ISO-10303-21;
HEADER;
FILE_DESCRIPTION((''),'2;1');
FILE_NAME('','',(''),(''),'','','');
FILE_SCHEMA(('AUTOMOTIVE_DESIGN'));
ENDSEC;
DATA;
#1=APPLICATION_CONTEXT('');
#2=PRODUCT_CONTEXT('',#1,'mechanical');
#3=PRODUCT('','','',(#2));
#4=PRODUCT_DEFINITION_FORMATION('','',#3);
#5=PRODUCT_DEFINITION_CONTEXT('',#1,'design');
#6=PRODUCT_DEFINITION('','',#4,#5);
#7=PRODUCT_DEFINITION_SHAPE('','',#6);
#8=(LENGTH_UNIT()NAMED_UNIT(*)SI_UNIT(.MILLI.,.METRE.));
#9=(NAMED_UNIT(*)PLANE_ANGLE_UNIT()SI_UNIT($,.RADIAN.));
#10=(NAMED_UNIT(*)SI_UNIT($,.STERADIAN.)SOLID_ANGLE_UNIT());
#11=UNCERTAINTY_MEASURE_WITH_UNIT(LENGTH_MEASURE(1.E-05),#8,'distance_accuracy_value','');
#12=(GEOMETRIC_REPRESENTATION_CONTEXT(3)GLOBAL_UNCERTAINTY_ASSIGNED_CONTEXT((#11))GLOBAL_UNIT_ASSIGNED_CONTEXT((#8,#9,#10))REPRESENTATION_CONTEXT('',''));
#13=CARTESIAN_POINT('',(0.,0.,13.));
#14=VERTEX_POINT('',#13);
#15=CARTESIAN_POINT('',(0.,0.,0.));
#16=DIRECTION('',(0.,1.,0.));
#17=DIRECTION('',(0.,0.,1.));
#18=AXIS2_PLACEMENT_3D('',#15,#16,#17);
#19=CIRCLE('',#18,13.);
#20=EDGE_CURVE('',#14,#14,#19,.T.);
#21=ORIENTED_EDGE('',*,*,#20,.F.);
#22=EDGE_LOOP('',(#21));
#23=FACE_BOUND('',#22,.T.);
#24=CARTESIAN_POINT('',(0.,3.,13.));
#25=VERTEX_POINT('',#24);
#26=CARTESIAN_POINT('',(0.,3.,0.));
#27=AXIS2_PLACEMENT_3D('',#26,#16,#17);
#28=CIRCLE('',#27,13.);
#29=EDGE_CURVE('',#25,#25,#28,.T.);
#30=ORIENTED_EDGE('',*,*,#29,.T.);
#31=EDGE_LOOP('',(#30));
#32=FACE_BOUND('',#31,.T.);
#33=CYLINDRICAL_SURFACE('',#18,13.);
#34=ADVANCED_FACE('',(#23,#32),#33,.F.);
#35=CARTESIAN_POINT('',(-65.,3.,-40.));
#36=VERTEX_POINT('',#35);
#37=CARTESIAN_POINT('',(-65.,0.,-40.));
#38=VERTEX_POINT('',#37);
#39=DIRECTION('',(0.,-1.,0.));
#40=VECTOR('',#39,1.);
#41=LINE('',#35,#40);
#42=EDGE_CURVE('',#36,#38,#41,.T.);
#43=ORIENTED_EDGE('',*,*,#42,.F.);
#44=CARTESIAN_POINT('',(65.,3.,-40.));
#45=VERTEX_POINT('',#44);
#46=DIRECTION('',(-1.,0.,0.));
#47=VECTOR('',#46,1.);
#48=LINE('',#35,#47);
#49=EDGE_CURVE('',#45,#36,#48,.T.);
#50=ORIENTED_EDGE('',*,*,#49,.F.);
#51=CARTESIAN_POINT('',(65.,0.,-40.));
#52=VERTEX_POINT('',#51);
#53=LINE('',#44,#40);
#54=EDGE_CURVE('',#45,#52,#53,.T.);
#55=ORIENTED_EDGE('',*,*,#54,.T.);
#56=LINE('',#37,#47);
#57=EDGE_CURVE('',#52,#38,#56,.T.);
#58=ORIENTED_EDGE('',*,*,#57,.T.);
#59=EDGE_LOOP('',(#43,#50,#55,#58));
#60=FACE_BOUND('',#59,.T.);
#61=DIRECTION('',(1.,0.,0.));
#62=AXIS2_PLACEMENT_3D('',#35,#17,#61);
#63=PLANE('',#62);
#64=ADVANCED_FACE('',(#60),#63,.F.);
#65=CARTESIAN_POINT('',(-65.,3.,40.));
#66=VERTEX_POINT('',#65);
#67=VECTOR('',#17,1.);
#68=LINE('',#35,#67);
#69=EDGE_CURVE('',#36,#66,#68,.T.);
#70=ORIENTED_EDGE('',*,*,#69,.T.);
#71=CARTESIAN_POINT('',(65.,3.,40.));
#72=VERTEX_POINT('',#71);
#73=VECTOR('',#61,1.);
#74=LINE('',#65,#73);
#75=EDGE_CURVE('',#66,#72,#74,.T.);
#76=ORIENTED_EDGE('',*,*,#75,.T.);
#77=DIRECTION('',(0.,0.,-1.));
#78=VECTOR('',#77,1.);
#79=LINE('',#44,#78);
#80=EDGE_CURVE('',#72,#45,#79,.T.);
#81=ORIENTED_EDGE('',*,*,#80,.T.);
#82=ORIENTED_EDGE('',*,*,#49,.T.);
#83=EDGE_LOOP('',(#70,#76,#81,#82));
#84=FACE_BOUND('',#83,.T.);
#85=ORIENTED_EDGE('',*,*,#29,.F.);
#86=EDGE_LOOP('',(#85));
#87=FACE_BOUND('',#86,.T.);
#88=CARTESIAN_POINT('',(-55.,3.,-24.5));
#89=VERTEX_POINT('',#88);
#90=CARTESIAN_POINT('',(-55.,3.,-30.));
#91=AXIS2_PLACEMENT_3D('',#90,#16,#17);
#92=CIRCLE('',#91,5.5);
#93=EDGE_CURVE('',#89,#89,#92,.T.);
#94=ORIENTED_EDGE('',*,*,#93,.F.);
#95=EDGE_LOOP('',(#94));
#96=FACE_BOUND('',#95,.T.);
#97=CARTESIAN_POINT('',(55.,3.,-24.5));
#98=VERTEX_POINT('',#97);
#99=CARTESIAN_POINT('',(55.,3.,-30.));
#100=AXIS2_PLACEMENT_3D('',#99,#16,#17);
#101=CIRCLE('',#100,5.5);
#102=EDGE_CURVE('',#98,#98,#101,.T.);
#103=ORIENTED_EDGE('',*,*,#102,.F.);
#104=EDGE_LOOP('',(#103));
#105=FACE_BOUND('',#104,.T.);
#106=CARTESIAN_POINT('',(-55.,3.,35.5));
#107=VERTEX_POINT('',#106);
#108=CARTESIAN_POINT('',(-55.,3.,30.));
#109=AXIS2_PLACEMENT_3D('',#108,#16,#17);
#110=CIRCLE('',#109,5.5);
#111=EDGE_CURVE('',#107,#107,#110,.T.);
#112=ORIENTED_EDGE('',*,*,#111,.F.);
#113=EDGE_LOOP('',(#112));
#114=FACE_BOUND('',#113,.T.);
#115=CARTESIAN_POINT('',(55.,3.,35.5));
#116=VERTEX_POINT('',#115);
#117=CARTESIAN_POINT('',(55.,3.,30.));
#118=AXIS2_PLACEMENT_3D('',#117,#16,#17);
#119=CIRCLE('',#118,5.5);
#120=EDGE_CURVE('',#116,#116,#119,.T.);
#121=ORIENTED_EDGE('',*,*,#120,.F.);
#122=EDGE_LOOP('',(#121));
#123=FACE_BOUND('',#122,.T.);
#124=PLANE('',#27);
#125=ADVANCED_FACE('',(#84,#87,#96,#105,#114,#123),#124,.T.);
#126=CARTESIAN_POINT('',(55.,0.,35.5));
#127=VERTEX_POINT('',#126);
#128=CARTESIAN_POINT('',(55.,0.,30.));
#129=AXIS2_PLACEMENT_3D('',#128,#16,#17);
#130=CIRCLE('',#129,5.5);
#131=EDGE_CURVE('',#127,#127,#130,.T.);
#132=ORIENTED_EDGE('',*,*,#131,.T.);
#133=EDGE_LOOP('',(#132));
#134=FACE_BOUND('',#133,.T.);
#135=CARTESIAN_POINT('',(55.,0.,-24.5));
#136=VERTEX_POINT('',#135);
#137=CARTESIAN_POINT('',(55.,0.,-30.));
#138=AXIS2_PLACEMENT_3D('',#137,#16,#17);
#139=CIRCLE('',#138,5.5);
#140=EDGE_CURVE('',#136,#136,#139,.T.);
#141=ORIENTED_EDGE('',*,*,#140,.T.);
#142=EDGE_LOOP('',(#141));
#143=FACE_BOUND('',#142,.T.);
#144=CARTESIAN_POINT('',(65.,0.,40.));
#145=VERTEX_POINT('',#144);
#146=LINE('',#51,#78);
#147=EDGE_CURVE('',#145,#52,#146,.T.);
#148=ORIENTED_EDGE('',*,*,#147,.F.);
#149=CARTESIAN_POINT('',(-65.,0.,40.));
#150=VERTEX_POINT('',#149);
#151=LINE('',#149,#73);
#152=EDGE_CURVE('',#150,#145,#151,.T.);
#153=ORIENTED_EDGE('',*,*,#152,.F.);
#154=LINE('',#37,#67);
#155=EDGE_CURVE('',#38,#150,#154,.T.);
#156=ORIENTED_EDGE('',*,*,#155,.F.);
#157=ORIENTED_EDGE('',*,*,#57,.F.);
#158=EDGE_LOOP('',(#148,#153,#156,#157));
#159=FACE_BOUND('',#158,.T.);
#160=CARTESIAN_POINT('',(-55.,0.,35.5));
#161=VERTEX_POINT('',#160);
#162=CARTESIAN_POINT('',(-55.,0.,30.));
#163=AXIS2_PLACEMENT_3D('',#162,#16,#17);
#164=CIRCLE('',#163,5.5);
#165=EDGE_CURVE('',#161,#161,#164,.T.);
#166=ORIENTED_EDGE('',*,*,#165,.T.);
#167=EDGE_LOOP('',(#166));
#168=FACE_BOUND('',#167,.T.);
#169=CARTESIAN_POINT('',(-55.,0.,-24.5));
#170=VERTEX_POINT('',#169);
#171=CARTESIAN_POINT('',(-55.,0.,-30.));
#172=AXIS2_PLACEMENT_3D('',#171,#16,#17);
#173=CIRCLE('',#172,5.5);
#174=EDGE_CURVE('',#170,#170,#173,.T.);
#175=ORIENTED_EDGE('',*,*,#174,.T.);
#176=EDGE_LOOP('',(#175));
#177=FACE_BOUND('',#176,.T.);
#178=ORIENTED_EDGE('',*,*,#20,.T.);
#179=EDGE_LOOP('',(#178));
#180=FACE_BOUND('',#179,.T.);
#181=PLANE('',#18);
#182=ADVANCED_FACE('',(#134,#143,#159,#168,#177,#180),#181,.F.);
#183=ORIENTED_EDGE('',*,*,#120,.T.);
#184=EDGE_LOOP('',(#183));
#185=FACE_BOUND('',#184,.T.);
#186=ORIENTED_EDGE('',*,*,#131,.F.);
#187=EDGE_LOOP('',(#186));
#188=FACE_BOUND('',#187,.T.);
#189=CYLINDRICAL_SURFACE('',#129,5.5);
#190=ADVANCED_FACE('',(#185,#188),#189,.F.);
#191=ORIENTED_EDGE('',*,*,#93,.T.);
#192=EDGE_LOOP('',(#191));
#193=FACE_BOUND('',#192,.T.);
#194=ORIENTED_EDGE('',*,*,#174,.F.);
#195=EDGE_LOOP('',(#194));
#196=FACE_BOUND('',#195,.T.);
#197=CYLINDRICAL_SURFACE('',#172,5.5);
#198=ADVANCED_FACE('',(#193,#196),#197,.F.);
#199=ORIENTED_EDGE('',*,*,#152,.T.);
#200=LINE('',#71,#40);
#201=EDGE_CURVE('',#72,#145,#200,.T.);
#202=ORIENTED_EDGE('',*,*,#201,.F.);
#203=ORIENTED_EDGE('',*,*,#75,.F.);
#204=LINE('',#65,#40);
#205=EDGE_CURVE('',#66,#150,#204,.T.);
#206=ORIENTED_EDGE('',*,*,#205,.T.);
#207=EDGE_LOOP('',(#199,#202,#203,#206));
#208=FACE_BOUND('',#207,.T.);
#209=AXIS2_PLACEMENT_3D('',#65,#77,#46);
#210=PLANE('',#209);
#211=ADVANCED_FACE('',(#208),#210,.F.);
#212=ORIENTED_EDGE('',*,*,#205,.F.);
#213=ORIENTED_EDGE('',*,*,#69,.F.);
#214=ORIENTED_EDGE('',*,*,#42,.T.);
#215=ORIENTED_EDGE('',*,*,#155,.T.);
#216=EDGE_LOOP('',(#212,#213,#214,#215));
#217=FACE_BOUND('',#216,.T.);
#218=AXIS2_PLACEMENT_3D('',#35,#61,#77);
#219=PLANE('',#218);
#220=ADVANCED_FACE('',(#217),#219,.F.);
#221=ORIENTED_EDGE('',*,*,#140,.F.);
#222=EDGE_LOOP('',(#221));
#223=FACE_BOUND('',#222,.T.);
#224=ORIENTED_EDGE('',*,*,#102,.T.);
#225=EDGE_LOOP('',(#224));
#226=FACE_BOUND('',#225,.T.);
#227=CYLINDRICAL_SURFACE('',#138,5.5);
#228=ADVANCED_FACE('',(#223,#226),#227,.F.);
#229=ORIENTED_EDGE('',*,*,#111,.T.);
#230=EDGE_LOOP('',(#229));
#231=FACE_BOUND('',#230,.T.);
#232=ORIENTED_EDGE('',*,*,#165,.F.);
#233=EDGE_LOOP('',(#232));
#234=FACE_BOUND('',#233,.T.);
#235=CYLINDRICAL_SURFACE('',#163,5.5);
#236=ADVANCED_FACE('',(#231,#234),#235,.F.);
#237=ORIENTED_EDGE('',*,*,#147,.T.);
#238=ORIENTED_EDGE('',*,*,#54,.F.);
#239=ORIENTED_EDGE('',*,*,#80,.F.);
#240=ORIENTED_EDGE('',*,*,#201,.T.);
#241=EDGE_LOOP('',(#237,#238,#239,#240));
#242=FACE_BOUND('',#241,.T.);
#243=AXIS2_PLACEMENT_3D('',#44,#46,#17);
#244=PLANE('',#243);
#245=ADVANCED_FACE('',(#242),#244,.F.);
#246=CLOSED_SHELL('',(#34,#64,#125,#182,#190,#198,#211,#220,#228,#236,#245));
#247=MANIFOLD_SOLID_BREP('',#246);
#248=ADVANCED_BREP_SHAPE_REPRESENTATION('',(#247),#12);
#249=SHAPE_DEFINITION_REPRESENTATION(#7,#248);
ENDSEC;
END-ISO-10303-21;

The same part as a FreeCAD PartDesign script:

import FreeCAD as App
import Part
import Sketcher
from FreeCAD import Vector

doc = App.newDocument("Part")
body = doc.addObject("PartDesign::Body", "Body")

# Sketch on XZ plane
sketch1 = body.newObject("Sketcher::SketchObject", "Sketch")
sketch1.AttachmentSupport = (doc.getObject("XZ_Plane"), [""])
sketch1.MapMode = "FlatFace"
sketch1.addGeometry([
    Part.LineSegment(Vector(-65, -40, 0), Vector(-65, 40, 0)),
    Part.LineSegment(Vector(-65, 40, 0), Vector(65, 40, 0)),
    Part.LineSegment(Vector(65, 40, 0), Vector(65, -40, 0)),
    Part.LineSegment(Vector(65, -40, 0), Vector(-65, -40, 0)),
], False)
sketch1.addConstraint([
    Sketcher.Constraint("Coincident", 0, 2, 1, 1),
    Sketcher.Constraint("Coincident", 1, 2, 2, 1),
    Sketcher.Constraint("Coincident", 2, 2, 3, 1),
    Sketcher.Constraint("Coincident", 3, 2, 0, 1),
    Sketcher.Constraint("Vertical", 0),
    Sketcher.Constraint("Horizontal", 1),
    Sketcher.Constraint("Vertical", 2),
    Sketcher.Constraint("Horizontal", 3),
    Sketcher.Constraint("Symmetric", 0, 2, 2, 2, -1, 1),
    Sketcher.Constraint("DistanceX", 1, 1, 1, 2, 130.0),
    Sketcher.Constraint("DistanceY", 0, 1, 0, 2, 80.0),
])
pad1 = body.newObject("PartDesign::Pad", "Pad")
pad1.Profile = sketch1
pad1.Length = 3
pad1.Reversed = True

# Sketch on XZ plane
sketch2 = body.newObject("Sketcher::SketchObject", "Sketch001")
sketch2.AttachmentSupport = (doc.getObject("XZ_Plane"), [""])
sketch2.MapMode = "FlatFace"
sketch2.AttachmentOffset = App.Placement(Vector(0, 0, -3), App.Rotation())
sketch2.addGeometry(Part.Circle(Vector(0, 0, 0), Vector(0, 0, 1), 13), False)
sketch2.addConstraint([
    Sketcher.Constraint("Coincident", 0, 3, -1, 1),
    Sketcher.Constraint("Diameter", 0, 26.0),
])
pocket1 = body.newObject("PartDesign::Pocket", "Pocket")
pocket1.Profile = sketch2
pocket1.Length = 3
pocket1.Reversed = True

# Sketch on XZ plane
sketch3 = body.newObject("Sketcher::SketchObject", "Sketch002")
sketch3.AttachmentSupport = (doc.getObject("XZ_Plane"), [""])
sketch3.MapMode = "FlatFace"
sketch3.AttachmentOffset = App.Placement(Vector(0, 0, -3), App.Rotation())
sketch3.addGeometry([
    Part.Circle(Vector(-55, -30, 0), Vector(0, 0, 1), 6),
    Part.Circle(Vector(-55, 30, 0), Vector(0, 0, 1), 6),
    Part.Circle(Vector(55, -30, 0), Vector(0, 0, 1), 6),
    Part.Circle(Vector(55, 30, 0), Vector(0, 0, 1), 6),
], False)
sketch3.addConstraint([
    Sketcher.Constraint("Equal", 0, 1),
    Sketcher.Constraint("Equal", 1, 2),
    Sketcher.Constraint("Equal", 2, 3),
    Sketcher.Constraint("Symmetric", 1, 3, 2, 3, -1, 1),
    Sketcher.Constraint("Symmetric", 0, 3, 3, 3, -1, 1),
    Sketcher.Constraint("Symmetric", 0, 3, 2, 3, -2),
    Sketcher.Constraint("Diameter", 0, 11.0),
    Sketcher.Constraint("DistanceX", 0, 3, -1, 1, 55.0),
    Sketcher.Constraint("DistanceY", 0, 3, -1, 1, 30.0),
])
pocket2 = body.newObject("PartDesign::Pocket", "Pocket001")
pocket2.Profile = sketch3
pocket2.Length = 3
pocket2.Reversed = True

doc.recompute()
